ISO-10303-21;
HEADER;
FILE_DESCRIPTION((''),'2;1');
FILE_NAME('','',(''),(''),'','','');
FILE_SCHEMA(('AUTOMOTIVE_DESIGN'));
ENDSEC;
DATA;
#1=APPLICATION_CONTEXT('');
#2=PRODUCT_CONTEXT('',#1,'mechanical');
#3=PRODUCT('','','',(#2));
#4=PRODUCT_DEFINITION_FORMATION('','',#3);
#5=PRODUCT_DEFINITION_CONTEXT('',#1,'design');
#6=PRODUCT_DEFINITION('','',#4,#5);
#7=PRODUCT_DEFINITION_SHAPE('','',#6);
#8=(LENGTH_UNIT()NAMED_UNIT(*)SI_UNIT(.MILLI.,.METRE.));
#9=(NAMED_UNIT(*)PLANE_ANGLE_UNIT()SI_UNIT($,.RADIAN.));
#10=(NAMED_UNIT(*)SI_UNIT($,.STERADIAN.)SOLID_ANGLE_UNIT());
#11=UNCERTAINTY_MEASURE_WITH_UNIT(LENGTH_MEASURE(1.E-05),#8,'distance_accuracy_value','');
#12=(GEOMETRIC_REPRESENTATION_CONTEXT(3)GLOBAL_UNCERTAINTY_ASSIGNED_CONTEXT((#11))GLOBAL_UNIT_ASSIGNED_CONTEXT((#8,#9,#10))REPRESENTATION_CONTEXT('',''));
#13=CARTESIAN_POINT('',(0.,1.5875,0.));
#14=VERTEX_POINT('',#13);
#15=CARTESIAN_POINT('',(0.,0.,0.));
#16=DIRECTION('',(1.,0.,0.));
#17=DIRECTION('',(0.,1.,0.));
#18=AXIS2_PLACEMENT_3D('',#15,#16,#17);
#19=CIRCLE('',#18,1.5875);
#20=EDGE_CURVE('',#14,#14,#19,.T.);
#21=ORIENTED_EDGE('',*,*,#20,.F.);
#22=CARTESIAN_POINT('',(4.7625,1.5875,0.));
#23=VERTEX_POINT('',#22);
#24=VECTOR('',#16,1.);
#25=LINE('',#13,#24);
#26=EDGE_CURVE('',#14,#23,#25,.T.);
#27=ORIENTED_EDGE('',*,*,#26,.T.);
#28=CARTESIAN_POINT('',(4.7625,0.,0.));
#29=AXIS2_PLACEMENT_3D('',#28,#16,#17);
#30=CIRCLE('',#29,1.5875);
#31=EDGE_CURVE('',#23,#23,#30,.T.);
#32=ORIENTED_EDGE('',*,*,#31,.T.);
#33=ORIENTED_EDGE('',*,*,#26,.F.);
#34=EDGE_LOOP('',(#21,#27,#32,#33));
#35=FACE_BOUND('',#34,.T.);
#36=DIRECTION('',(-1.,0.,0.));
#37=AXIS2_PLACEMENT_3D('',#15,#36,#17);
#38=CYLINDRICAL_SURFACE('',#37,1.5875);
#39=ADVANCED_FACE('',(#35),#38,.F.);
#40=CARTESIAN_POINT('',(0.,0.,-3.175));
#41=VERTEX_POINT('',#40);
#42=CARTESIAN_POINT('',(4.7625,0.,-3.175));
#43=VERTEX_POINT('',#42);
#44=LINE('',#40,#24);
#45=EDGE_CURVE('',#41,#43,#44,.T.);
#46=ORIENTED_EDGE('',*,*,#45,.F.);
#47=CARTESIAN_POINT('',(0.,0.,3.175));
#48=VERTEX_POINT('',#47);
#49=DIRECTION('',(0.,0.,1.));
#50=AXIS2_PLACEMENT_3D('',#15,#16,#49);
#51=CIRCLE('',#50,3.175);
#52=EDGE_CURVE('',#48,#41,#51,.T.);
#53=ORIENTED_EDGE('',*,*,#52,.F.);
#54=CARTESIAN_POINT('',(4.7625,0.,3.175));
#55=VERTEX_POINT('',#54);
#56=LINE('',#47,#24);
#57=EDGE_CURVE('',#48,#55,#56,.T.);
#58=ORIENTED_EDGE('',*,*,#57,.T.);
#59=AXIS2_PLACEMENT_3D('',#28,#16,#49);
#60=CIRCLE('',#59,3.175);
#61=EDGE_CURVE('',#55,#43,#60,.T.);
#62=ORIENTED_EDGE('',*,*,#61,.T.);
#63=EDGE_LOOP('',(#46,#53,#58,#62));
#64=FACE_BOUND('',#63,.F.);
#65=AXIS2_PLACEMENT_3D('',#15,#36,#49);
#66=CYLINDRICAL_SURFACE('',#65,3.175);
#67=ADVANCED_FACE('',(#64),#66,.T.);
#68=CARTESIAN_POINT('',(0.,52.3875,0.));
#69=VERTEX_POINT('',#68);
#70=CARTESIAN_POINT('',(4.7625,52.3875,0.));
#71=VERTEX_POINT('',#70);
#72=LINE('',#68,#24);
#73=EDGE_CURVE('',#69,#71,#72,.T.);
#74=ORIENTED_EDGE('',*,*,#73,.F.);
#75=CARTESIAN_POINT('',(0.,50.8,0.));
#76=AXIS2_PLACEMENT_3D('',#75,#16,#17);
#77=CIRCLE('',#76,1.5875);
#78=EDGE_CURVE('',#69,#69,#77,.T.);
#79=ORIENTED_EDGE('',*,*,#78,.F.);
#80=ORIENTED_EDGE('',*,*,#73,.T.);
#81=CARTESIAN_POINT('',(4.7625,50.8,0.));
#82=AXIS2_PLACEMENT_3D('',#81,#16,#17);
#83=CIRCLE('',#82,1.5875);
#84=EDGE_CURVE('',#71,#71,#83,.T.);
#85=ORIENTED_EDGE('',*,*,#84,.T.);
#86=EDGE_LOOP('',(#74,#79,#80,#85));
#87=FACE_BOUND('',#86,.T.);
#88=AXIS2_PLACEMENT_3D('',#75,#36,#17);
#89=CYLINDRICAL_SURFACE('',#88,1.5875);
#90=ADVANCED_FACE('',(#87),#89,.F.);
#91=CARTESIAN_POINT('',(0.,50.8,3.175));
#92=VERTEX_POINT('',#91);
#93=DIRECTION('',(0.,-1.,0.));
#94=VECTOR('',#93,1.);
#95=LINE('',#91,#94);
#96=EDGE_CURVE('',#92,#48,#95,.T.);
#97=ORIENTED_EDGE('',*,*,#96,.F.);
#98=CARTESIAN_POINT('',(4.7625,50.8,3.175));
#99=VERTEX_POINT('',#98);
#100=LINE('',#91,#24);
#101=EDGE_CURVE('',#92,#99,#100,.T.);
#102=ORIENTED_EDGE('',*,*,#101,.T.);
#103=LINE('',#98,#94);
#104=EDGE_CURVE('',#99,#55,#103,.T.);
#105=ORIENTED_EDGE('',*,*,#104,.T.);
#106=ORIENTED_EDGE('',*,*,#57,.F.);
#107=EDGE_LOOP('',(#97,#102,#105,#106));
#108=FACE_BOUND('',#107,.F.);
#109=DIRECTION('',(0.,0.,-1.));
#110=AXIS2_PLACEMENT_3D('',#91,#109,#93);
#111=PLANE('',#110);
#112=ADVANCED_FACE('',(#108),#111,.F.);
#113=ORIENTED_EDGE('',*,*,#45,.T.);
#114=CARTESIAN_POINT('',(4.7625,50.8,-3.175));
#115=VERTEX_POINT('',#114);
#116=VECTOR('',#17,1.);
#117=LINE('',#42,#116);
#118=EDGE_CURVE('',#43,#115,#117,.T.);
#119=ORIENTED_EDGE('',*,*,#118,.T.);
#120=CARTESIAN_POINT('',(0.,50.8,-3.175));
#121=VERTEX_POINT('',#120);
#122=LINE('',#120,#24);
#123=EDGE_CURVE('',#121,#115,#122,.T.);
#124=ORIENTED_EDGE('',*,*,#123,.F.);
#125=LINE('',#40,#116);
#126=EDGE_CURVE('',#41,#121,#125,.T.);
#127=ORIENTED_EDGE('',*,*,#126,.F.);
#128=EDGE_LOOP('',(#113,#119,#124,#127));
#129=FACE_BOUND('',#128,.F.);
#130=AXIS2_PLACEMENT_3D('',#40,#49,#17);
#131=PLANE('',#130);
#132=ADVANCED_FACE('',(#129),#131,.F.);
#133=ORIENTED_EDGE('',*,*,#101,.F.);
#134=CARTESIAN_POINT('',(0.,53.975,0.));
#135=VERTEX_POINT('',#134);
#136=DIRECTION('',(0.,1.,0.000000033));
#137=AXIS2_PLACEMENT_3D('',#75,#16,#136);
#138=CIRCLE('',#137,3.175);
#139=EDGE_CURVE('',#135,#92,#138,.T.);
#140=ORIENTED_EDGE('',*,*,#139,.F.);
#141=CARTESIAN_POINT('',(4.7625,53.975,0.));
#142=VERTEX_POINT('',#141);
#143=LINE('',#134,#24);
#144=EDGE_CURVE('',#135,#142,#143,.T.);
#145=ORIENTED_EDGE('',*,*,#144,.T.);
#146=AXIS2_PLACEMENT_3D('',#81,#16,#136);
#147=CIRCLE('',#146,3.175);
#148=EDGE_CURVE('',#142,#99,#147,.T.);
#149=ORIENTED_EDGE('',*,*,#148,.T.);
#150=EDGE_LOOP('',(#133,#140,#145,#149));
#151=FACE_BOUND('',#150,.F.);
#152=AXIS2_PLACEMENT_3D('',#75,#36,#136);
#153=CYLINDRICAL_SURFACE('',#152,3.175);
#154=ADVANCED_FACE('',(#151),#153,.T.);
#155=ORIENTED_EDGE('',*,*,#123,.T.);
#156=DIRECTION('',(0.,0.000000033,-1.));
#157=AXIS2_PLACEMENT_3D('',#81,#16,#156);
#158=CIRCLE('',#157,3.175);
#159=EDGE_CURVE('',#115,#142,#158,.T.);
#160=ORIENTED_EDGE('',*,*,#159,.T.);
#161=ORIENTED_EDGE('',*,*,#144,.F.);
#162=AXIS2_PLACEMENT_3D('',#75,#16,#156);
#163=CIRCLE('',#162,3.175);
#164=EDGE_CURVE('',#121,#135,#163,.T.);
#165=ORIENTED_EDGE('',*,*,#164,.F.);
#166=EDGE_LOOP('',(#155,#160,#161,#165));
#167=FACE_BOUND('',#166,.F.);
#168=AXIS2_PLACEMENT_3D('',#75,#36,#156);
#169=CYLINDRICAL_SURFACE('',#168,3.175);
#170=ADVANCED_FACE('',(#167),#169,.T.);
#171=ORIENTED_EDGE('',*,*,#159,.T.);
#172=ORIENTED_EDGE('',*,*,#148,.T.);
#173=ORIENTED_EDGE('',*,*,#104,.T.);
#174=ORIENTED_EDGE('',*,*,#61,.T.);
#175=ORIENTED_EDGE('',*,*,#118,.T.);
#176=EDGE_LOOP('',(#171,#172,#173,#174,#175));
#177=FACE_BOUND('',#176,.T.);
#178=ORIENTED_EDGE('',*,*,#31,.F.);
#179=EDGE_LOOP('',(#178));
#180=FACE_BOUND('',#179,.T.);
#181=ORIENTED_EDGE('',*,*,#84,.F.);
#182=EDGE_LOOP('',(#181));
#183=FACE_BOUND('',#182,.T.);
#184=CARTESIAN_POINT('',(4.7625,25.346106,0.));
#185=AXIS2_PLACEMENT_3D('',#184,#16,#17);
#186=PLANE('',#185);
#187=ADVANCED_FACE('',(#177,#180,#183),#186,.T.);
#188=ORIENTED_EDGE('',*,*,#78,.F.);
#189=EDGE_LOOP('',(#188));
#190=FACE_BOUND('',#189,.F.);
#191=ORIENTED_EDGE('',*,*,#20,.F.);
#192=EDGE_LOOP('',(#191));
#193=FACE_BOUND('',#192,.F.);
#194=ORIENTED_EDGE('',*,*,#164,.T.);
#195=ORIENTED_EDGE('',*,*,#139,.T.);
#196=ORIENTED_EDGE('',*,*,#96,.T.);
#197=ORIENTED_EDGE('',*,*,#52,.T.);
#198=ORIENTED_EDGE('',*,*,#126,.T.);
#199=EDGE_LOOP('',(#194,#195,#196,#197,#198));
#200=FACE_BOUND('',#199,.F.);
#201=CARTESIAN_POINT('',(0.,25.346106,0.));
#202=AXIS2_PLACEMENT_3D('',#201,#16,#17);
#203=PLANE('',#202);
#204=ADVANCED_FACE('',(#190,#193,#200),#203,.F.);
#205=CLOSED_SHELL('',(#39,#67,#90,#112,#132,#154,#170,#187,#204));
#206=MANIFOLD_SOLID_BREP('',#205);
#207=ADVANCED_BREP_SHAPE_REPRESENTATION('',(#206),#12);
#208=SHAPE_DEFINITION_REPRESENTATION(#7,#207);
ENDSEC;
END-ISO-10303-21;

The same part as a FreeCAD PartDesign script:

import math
import FreeCAD as App
import Part
import Sketcher
from FreeCAD import Vector
Q = App.Units.Quantity

doc = App.newDocument("Part")
body = doc.addObject("PartDesign::Body", "Body")

# Sketch on YZ plane
sketch1 = body.newObject("Sketcher::SketchObject", "Sketch")
sketch1.AttachmentSupport = (doc.getObject("YZ_Plane"), [""])
sketch1.MapMode = "FlatFace"
sketch1.addGeometry(Part.LineSegment(Vector(0, -3.2, 0), Vector(50.8, -3.2, 0)), False)
sketch1.addGeometry(Part.ArcOfCircle(Part.Circle(Vector(50.8, 0, 0), Vector(0, 0, 1), 3.2), math.radians(-90), math.radians(0)), False)
sketch1.addGeometry(Part.ArcOfCircle(Part.Circle(Vector(50.8, 0, 0), Vector(0, 0, 1), 3.2), math.radians(0), math.radians(90)), False)
sketch1.addGeometry(Part.LineSegment(Vector(50.8, 3.2, 0), Vector(0, 3.2, 0)), False)
sketch1.addGeometry(Part.ArcOfCircle(Part.Circle(Vector(0, 0, 0), Vector(0, 0, 1), 3.2), math.radians(90), math.radians(270)), False)
sketch1.addGeometry(Part.Circle(Vector(0, 0, 0), Vector(0, 0, 1), 1.6), False)
sketch1.addGeometry(Part.Circle(Vector(50.8, 0, 0), Vector(0, 0, 1), 1.6), False)
sketch1.addConstraint(Sketcher.Constraint("Tangent", 0, 2, 1, 1))
sketch1.addConstraint(Sketcher.Constraint("Tangent", 1, 2, 2, 1))
sketch1.addConstraint(Sketcher.Constraint("Tangent", 2, 2, 3, 1))
sketch1.addConstraint(Sketcher.Constraint("Tangent", 3, 2, 4, 1))
sketch1.addConstraint(Sketcher.Constraint("Tangent", 4, 2, 0, 1))
sketch1.addConstraint(Sketcher.Constraint("Horizontal", 0))
sketch1.addConstraint(Sketcher.Constraint("Horizontal", 3))
sketch1.addConstraint(Sketcher.Constraint("Coincident", 4, 3, -1, 1))
sketch1.addConstraint(Sketcher.Constraint("Coincident", 5, 3, -1, 1))
sketch1.addConstraint(Sketcher.Constraint("Coincident", 6, 3, 1, 3))
sketch1.addConstraint(Sketcher.Constraint("Equal", 1, 2))
sketch1.addConstraint(Sketcher.Constraint("Equal", 5, 6))
sketch1.addConstraint(Sketcher.Constraint("PointOnObject", 1, 2, -1))
sketch1.addConstraint(Sketcher.Constraint("DistanceX", 0, 1, 0, 2, Q("2 in")))
sketch1.addConstraint(Sketcher.Constraint("Diameter", 5, Q("0.125 in")))
sketch1.addConstraint(Sketcher.Constraint("Radius", 1, Q("0.125 in")))
pad1 = body.newObject("PartDesign::Pad", "Pad")
pad1.Profile = sketch1
pad1.Length = Q("0.1875 in")

doc.recompute()
